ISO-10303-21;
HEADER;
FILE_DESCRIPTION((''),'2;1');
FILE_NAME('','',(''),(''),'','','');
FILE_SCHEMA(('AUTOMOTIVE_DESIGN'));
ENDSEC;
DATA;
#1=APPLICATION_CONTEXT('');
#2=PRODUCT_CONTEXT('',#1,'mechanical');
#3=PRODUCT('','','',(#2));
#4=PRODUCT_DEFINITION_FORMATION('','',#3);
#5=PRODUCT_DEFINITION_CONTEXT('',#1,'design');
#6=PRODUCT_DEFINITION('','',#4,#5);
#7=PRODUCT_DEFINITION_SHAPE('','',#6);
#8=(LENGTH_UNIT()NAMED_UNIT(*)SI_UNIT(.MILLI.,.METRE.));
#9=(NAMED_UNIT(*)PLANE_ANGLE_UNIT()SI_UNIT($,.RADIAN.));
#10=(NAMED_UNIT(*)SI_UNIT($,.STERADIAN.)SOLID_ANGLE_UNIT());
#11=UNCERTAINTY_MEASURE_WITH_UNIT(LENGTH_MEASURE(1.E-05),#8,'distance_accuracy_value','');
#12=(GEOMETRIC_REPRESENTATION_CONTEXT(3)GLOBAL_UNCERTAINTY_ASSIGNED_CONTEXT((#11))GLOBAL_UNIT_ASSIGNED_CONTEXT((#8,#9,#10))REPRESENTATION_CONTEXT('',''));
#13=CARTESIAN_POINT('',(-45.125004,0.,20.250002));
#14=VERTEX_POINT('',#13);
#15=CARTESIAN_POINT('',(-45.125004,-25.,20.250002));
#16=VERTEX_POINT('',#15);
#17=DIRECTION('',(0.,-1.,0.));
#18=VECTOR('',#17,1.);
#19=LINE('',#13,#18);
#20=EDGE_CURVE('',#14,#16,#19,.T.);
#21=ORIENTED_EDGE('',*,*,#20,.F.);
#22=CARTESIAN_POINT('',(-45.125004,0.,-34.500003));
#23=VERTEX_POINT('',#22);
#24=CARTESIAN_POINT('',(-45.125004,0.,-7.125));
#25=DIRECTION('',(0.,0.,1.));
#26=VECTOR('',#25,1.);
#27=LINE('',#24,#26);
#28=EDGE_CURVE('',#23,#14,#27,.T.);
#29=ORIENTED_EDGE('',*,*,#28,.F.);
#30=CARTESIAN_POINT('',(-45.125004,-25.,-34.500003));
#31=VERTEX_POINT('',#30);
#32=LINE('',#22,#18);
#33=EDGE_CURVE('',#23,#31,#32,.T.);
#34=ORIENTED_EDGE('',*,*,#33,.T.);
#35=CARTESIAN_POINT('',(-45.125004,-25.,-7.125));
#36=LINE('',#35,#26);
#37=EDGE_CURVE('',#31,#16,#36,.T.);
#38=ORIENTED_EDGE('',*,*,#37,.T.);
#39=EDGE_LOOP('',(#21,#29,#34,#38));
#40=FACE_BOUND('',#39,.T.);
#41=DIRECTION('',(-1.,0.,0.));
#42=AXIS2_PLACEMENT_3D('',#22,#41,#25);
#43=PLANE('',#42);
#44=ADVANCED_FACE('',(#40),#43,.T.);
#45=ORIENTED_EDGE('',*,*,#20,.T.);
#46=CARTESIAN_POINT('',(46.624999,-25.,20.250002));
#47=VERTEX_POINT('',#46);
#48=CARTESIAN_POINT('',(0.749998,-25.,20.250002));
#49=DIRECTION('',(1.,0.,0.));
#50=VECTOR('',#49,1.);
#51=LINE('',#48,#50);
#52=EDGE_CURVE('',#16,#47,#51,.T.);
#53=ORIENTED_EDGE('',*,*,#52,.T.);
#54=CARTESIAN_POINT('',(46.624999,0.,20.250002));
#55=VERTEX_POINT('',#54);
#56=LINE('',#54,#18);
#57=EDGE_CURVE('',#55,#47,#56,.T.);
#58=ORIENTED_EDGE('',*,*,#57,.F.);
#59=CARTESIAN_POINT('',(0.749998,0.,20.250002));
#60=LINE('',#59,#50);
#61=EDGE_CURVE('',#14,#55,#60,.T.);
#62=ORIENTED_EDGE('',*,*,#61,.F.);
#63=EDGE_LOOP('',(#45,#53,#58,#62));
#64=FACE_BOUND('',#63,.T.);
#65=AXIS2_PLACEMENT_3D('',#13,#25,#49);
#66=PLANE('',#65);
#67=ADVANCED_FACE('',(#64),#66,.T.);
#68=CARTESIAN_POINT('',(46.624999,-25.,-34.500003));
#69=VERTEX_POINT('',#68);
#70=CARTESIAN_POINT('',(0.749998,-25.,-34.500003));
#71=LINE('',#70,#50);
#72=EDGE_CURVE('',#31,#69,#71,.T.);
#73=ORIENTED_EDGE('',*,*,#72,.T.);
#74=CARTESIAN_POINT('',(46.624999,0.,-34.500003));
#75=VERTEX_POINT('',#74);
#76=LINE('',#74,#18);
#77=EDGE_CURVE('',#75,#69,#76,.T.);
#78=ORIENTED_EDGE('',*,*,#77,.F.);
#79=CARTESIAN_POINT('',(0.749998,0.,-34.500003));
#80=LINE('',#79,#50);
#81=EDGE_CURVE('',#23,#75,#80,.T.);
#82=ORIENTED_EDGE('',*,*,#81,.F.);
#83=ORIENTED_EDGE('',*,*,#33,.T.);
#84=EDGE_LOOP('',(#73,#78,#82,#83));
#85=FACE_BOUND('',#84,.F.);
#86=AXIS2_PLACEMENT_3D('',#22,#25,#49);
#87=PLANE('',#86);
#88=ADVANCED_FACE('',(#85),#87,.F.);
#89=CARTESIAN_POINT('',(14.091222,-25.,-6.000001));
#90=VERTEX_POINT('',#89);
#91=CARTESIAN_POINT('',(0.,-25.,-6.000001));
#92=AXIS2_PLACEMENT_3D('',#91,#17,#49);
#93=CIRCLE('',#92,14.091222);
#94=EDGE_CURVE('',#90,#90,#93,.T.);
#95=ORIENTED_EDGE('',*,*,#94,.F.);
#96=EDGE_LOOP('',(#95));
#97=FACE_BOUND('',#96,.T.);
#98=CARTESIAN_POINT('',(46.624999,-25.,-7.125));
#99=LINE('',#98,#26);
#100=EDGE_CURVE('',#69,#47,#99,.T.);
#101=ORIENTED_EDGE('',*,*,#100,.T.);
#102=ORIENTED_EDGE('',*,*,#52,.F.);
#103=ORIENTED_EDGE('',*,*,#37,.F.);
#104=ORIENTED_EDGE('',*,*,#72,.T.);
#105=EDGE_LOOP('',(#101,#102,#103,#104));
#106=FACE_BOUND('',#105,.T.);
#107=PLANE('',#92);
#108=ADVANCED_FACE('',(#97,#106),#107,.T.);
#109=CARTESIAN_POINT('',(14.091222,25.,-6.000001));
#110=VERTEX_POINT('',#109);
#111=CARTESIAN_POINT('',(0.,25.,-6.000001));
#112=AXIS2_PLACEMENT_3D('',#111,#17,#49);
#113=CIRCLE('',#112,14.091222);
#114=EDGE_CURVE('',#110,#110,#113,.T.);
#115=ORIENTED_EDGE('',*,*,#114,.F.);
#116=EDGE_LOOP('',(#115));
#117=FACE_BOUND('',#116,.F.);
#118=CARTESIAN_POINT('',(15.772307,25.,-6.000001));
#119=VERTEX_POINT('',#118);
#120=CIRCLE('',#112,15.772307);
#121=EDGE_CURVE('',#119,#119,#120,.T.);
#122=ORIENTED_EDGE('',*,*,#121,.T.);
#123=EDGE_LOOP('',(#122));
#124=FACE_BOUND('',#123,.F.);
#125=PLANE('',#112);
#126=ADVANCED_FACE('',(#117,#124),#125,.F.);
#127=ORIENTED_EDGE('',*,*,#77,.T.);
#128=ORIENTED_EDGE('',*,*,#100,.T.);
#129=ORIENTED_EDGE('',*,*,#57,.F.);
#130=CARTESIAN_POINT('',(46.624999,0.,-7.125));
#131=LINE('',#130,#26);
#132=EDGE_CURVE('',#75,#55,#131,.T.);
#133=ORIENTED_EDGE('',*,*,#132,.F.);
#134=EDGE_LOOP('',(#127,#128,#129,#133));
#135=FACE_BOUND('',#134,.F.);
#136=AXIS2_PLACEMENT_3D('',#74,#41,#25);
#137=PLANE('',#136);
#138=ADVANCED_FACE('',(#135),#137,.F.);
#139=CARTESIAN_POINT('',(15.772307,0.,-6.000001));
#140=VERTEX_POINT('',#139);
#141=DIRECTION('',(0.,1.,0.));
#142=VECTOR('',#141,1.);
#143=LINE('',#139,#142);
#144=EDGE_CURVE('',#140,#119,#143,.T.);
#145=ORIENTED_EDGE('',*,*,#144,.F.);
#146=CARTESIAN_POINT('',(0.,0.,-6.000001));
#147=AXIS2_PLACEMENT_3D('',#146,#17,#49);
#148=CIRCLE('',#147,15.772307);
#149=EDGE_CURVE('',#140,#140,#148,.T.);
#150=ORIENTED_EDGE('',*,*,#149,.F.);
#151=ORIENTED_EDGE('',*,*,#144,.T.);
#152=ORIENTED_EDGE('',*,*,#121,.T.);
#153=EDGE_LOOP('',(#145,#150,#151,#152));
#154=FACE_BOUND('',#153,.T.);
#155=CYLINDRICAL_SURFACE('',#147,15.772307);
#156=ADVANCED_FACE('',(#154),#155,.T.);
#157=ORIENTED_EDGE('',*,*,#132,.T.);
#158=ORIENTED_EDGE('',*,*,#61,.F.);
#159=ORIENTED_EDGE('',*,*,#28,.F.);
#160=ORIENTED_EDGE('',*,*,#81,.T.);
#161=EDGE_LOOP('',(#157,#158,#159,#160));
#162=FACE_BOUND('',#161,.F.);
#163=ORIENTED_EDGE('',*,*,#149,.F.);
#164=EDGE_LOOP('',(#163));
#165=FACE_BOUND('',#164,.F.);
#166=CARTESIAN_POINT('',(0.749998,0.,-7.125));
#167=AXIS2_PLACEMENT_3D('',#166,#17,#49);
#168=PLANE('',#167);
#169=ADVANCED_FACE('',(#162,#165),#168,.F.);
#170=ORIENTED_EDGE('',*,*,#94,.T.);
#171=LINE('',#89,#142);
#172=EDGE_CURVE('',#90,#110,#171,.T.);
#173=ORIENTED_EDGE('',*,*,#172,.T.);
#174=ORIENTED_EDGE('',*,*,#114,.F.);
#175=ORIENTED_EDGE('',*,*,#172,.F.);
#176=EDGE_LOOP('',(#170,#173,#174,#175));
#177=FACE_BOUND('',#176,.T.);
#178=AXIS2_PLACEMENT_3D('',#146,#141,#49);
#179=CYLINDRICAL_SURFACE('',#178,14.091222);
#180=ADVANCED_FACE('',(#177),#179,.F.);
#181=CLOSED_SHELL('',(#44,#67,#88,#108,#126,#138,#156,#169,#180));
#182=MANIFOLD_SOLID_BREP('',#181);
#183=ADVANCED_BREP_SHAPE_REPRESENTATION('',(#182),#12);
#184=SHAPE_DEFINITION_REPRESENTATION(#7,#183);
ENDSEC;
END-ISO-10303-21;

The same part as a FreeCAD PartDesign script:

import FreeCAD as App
import Part
import Sketcher

V = App.Vector

doc = App.newDocument("Part")
body = doc.addObject("PartDesign::Body", "Body")

# Sketch on XZ plane
sketch1 = doc.addObject("Sketcher::SketchObject", "Sketch")
body.addObject(sketch1)
sketch1.AttachmentSupport = (doc.XZ_Plane, [""])
sketch1.MapMode = "FlatFace"
sketch1.addGeometry(Part.LineSegment(V(-45, 20, 0), V(-45, -35, 0)), False)
sketch1.addGeometry(Part.LineSegment(V(-45, -35, 0), V(47, -35, 0)), False)
sketch1.addGeometry(Part.LineSegment(V(47, -35, 0), V(47, 20, 0)), False)
sketch1.addGeometry(Part.LineSegment(V(47, 20, 0), V(-45, 20, 0)), False)
sketch1.addGeometry(Part.Circle(V(0, -6, 0), V(0, 0, 1), 16), False)
sketch1.addConstraint(Sketcher.Constraint("Coincident", 0, 2, 1, 1))
sketch1.addConstraint(Sketcher.Constraint("Coincident", 1, 2, 2, 1))
sketch1.addConstraint(Sketcher.Constraint("Coincident", 2, 2, 3, 1))
sketch1.addConstraint(Sketcher.Constraint("Coincident", 3, 2, 0, 1))
sketch1.addConstraint(Sketcher.Constraint("Vertical", 0))
sketch1.addConstraint(Sketcher.Constraint("Horizontal", 1))
sketch1.addConstraint(Sketcher.Constraint("Vertical", 2))
sketch1.addConstraint(Sketcher.Constraint("Horizontal", 3))
sketch1.addConstraint(Sketcher.Constraint("PointOnObject", 4, 3, -2))
sketch1.addConstraint(Sketcher.Constraint("DistanceY", 4, 3, -1, 1, 6.000001))
sketch1.addConstraint(Sketcher.Constraint("DistanceY", -1, 1, 2, 2, 20.250002))
sketch1.addConstraint(Sketcher.Constraint("Diameter", 4, 31.544614))
sketch1.addConstraint(Sketcher.Constraint("DistanceX", -1, 1, 1, 2, 46.624999))
sketch1.addConstraint(Sketcher.Constraint("DistanceX", 1, 1, 1, 2, 91.750003))
sketch1.addConstraint(Sketcher.Constraint("DistanceY", 0, 2, 0, 1, 54.750005))
pad1 = doc.addObject("PartDesign::Pad", "Pad")
body.addObject(pad1)
pad1.Profile = sketch1
pad1.Length = 25

# Sketch on XZ plane
sketch2 = doc.addObject("Sketcher::SketchObject", "Sketch001")
body.addObject(sketch2)
sketch2.AttachmentSupport = (doc.XZ_Plane, [""])
sketch2.MapMode = "FlatFace"
sketch2.addGeometry(Part.Circle(V(0, -6, 0), V(0, 0, 1), 16), False)
sketch2.addGeometry(Part.Circle(V(0, -6, 0), V(0, 0, 1), 14), False)
sketch2.addConstraint(Sketcher.Constraint("Coincident", 1, 3, 0, 3))
sketch2.addConstraint(Sketcher.Constraint("PointOnObject", 0, 3, -2))
sketch2.addConstraint(Sketcher.Constraint("DistanceY", 0, 3, -1, 1, 6.000001))
sketch2.addConstraint(Sketcher.Constraint("Diameter", 0, 31.544614))
sketch2.addConstraint(Sketcher.Constraint("Diameter", 1, 28.182445))
pad2 = doc.addObject("PartDesign::Pad", "Pad001")
body.addObject(pad2)
pad2.Profile = sketch2
pad2.Type = "TwoLengths"
pad2.Length = 25
pad2.Length2 = 25
pad2.Reversed = True

doc.recompute()
